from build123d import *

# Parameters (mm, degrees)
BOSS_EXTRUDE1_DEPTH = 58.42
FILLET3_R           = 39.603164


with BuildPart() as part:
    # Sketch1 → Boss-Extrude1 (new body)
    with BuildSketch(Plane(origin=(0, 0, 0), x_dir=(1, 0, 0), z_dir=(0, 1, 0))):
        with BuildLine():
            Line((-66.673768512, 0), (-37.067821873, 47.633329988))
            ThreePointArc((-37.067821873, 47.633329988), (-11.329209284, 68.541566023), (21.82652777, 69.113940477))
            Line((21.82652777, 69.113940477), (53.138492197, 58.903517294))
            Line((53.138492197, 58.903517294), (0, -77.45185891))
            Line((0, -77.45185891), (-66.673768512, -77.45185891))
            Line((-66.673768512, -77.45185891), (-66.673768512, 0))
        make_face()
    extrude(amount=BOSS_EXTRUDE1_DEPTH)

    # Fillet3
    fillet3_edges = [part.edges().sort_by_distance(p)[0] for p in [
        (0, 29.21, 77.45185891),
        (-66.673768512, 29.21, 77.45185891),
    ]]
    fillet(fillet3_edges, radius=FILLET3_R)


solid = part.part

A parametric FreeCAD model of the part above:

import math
import FreeCAD as App
import Part
import Sketcher
from FreeCAD import Vector
Q = App.Units.Quantity


def edges_at(feature, points):
    """Names of the edges that pass closest to the given points."""
    edges = feature.Shape.Edges
    near = lambda p: min(range(len(edges)), key=lambda i: edges[i].distToShape(Part.Vertex(*p))[0])
    return sorted({f"Edge{near(p) + 1}" for p in points})

doc = App.newDocument("Part")
params = doc.addObject("Spreadsheet::Sheet", "Params")
for row, (alias, value) in enumerate([
    ("sketch1_radius", "2 in"),
    ("pad1_length", "2.3 in"),
    ("fillet_radius", "39.603164 mm"),
], start=1):
    params.set(f"A{row}", alias)
    params.set(f"B{row}", "=" + value)
    params.setAlias(f"B{row}", alias)

body = doc.addObject("PartDesign::Body", "Body")

# Sketch on XZ plane
sketch1 = body.newObject("Sketcher::SketchObject", "Sketch")
sketch1.AttachmentSupport = (doc.getObject("XZ_Plane"), [""])
sketch1.MapMode = "FlatFace"
sketch1.addGeometry([
    Part.LineSegment(Vector(-37.067822, -47.63333, 0), Vector(-66.673769, 0, 0)),  # 0
    Part.LineSegment(Vector(-66.673769, 0, 0), Vector(-66.673769, 77.451859, 0)),  # 1
    Part.LineSegment(Vector(-66.673769, 77.451859, 0), Vector(0, 77.451859, 0)),  # 2
    Part.LineSegment(Vector(0, 77.451859, 0), Vector(53.138492, -58.903517, 0)),  # 3
    Part.LineSegment(Vector(53.138492, -58.903517, 0), Vector(21.826528, -69.11394, 0)),  # 4
    Part.ArcOfCircle(Part.Circle(Vector(6.077481, -20.816865, 0), Vector(0, 0, 1), 50.8), math.radians(-148.137459), math.radians(-71.939528)),  # 5
], False)
sketch1.addConstraint([
    Sketcher.Constraint("Coincident", 0, 2, 1, 1),
    Sketcher.Constraint("Coincident", 1, 2, 2, 1),
    Sketcher.Constraint("Coincident", 2, 2, 3, 1),
    Sketcher.Constraint("Coincident", 3, 2, 4, 1),
    Sketcher.Constraint("Tangent", 4, 2, 5, 2),
    Sketcher.Constraint("Tangent", 5, 1, 0, 1),
    Sketcher.Constraint("Vertical", 1),
    Sketcher.Constraint("Horizontal", 2),
    Sketcher.Constraint("PointOnObject", 0, 2, -1),
    Sketcher.Constraint("PointOnObject", 2, 2, -2),
    Sketcher.Constraint("Radius", 5, Q("2 in")),
    Sketcher.Constraint("DistanceX", 2, 1, 2, 2, 66.673769),
    Sketcher.Constraint("DistanceY", 1, 1, 1, 2, 77.451859),
    Sketcher.Constraint("DistanceY", 4, 2, 2, 2, 146.565799),
    Sketcher.Constraint("Distance", 4, 32.93466),
    Sketcher.Constraint("DistanceX", -1, 1, 5, 3, 6.077481),
    Sketcher.Constraint("DistanceY", 5, 1, -1, 1, 47.63333),
])
sketch1.setExpression("Constraints[10]", "Params.sketch1_radius")
pad1 = body.newObject("PartDesign::Pad", "Pad")
pad1.Profile = sketch1
pad1.setExpression("Length", "Params.pad1_length")
pad1.Reversed = True
doc.recompute()

fillet = body.newObject("PartDesign::Fillet", "Fillet")
fillet.Base = (pad1, edges_at(pad1, [(0, 29.21, 77.452), (-66.674, 29.21, 77.452)]))
fillet.setExpression("Radius", "Params.fillet_radius")

doc.recompute()
